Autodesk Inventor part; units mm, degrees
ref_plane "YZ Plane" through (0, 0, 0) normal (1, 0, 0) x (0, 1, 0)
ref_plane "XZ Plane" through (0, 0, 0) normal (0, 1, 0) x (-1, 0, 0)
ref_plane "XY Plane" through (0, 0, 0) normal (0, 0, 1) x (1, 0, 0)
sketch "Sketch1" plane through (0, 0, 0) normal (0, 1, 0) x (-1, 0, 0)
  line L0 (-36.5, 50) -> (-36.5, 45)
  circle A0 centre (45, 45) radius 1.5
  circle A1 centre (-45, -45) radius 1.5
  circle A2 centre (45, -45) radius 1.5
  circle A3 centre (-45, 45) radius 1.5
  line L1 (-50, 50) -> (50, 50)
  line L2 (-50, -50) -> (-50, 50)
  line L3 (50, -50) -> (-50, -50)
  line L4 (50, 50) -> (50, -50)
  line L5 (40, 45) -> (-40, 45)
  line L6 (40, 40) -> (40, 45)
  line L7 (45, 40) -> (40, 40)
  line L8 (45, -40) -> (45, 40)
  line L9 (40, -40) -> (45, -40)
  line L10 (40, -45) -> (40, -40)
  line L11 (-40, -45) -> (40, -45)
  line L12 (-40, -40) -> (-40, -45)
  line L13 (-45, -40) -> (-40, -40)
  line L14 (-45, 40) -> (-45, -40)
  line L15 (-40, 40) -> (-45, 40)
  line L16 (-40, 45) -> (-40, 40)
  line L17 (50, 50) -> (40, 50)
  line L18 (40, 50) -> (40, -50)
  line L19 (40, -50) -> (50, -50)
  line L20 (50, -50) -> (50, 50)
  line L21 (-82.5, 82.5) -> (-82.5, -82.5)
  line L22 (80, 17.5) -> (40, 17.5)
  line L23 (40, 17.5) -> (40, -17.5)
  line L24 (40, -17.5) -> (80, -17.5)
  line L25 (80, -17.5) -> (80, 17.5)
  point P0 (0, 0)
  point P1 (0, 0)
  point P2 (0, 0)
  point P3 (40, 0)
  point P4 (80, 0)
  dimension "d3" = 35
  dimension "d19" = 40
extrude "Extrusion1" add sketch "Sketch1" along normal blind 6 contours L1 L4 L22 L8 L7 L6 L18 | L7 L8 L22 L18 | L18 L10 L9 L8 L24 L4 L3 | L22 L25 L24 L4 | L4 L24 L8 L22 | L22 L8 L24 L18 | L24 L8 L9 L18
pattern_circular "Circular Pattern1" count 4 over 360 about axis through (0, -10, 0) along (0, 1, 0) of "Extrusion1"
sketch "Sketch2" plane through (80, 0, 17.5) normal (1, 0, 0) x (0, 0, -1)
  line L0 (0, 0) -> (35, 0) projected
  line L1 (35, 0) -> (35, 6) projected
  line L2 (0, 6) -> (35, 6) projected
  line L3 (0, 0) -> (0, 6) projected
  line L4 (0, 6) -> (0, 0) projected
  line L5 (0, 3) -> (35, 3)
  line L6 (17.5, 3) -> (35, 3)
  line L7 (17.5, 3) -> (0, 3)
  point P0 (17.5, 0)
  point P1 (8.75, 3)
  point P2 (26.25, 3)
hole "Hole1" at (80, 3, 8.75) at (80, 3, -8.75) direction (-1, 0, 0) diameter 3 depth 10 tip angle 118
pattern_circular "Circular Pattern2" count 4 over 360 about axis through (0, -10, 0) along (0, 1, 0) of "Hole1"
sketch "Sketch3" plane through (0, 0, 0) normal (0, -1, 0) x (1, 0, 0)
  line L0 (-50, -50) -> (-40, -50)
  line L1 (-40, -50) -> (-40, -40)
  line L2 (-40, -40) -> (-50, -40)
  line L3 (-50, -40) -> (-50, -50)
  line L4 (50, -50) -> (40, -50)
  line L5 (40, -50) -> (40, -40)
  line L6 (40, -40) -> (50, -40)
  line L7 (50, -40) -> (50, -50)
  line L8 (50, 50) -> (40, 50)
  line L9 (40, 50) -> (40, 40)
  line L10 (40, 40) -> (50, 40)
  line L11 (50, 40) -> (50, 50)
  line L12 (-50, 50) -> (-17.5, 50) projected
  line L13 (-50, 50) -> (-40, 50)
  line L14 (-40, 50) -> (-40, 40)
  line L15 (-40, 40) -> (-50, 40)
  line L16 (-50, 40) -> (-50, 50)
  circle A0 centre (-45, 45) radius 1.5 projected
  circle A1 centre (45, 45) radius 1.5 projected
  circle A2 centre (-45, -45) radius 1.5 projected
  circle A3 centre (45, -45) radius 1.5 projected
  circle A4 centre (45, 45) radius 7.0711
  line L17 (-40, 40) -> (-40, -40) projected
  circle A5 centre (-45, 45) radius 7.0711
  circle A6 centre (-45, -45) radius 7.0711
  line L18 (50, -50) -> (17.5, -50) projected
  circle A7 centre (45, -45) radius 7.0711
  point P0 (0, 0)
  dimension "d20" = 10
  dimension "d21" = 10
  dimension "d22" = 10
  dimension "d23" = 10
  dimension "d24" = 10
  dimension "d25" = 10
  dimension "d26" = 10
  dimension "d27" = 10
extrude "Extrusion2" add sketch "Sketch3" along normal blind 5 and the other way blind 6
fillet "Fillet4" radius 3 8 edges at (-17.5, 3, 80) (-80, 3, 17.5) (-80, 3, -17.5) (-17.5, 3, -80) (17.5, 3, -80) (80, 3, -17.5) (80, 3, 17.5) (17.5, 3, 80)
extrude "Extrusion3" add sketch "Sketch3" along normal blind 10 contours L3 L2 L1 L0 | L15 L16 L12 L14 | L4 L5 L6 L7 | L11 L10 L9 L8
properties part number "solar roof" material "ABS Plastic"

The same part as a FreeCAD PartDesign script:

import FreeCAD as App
import Part
import Sketcher


def edges_at(feature, points):
    """Names of the edges that pass closest to the given points."""
    edges = feature.Shape.Edges
    near = lambda p: min(range(len(edges)), key=lambda i: edges[i].distToShape(Part.Vertex(*p))[0])
    return sorted({f"Edge{near(p) + 1}" for p in points})


def add_polygon(sketch, points):
    """Adds a closed chain of lines whose ends are joined by coincident constraints."""
    first, n = sketch.GeometryCount, len(points)
    for a, b in zip(points, points[1:] + points[:1]):
        sketch.addGeometry(Part.LineSegment(App.Vector(*a, 0), App.Vector(*b, 0)), False)
    for i in range(n):
        sketch.addConstraint(Sketcher.Constraint("Coincident", first + i, 2, first + (i + 1) % n, 1))

doc = App.newDocument("Part")
params = doc.addObject("Spreadsheet::Sheet", "Params")
for row, (alias, value) in enumerate([
    ("sketch1_height", "35 mm"),
    ("sketch1_diameter", "3 mm"),
    ("sketch1_width", "10 mm"),
    ("sketch1_height2", "100 mm"),
    ("pad1_length", "6 mm"),
    ("sketch2_diameter", "3 mm"),
    ("hole_diameter", "3 mm"),
    ("hole_depth", "10 mm"),
    ("sketch3_diameter", "3 mm"),
    ("pad2_length", "5 mm"),
    ("pad2_length2", "6 mm"),
    ("fillet_radius", "3 mm"),
    ("sketch4_width", "10 mm"),
    ("sketch4_diameter", "3 mm"),
    ("pad3_length", "10 mm"),
], start=1):
    params.set(f"A{row}", alias)
    params.set(f"B{row}", "=" + value)
    params.setAlias(f"B{row}", alias)

body = doc.addObject("PartDesign::Body", "Body")

# Sketch on XZ plane
sketch1 = body.newObject("Sketcher::SketchObject", "Sketch")
sketch1.AttachmentSupport = (doc.getObject("XZ_Plane"), [""])
sketch1.MapMode = "FlatFace"
add_polygon(sketch1, [(-50, 50), (-40, 50), (-40, -50), (-50, -50), (-50, -17.5), (-80, -17.5), (-80, 17.5), (-50, 17.5)])  # lines 0-7
sketch1.addGeometry(Part.Circle(App.Vector(-45, 45, 0), App.Vector(0, 0, 1), 1.5), False)  # 8
sketch1.addGeometry(Part.Circle(App.Vector(-45, -45, 0), App.Vector(0, 0, 1), 1.5), False)  # 9
sketch1.addConstraint(Sketcher.Constraint("Horizontal", 0))
sketch1.addConstraint(Sketcher.Constraint("Vertical", 1))
sketch1.addConstraint(Sketcher.Constraint("Horizontal", 2))
sketch1.addConstraint(Sketcher.Constraint("Vertical", 3))
sketch1.addConstraint(Sketcher.Constraint("Horizontal", 4))
sketch1.addConstraint(Sketcher.Constraint("Vertical", 5))
sketch1.addConstraint(Sketcher.Constraint("Horizontal", 6))
sketch1.addConstraint(Sketcher.Constraint("Vertical", 7))
sketch1.addConstraint(Sketcher.Constraint("Equal", 8, 9))
sketch1.addConstraint(Sketcher.Constraint("Symmetric", 8, 3, 9, 3, -1))
sketch1.addConstraint(Sketcher.Constraint("Symmetric", 3, 2, 6, 2, -1))
sketch1.addConstraint(Sketcher.Constraint("Equal", 3, 7))
sketch1.addConstraint(Sketcher.Constraint("DistanceY", 5, 1, 5, 2, 35.0))
sketch1.addConstraint(Sketcher.Constraint("Diameter", 8, 3.0))
sketch1.addConstraint(Sketcher.Constraint("DistanceX", 0, 2, -1, 1, 40.0))
sketch1.addConstraint(Sketcher.Constraint("DistanceX", 4, 2, 9, 3, 35.0))
sketch1.addConstraint(Sketcher.Constraint("DistanceX", 4, 2, 1, 2, 40.0))
sketch1.addConstraint(Sketcher.Constraint("DistanceX", 0, 1, 0, 2, 10.0))
sketch1.addConstraint(Sketcher.Constraint("DistanceY", 1, 2, 1, 1, 100.0))
sketch1.addConstraint(Sketcher.Constraint("DistanceY", -1, 1, 8, 3, 45.0))
sketch1.setExpression("Constraints[20]", "Params.sketch1_height")
sketch1.setExpression("Constraints[21]", "Params.sketch1_diameter")
sketch1.setExpression("Constraints[25]", "Params.sketch1_width")
sketch1.setExpression("Constraints[26]", "Params.sketch1_height2")
pad1 = body.newObject("PartDesign::Pad", "Pad")
pad1.Profile = sketch1
pad1.setExpression("Length", "Params.pad1_length")
pad1.Reversed = True
doc.recompute()

polarpattern = body.newObject("PartDesign::PolarPattern", "PolarPattern")
polarpattern.Originals = [pad1]
polarpattern.Axis = (doc.getObject("Y_Axis"), [""])
polarpattern.Angle = 360
polarpattern.Occurrences = 4
body.Tip = polarpattern

# Sketch on YZ plane
sketch2 = body.newObject("Sketcher::SketchObject", "Sketch001")
sketch2.AttachmentSupport = (doc.getObject("YZ_Plane"), [""])
sketch2.MapMode = "FlatFace"
sketch2.AttachmentOffset = App.Placement(App.Vector(0, 0, 80), App.Rotation())
sketch2.addGeometry(Part.Circle(App.Vector(3, 8.8, 0), App.Vector(0, 0, 1), 1.5), False)
sketch2.addGeometry(Part.Circle(App.Vector(3, -8.8, 0), App.Vector(0, 0, 1), 1.5), False)
sketch2.addConstraint(Sketcher.Constraint("Equal", 0, 1))
sketch2.addConstraint(Sketcher.Constraint("Symmetric", 0, 3, 1, 3, -1))
sketch2.addConstraint(Sketcher.Constraint("Diameter", 0, 3.0))
sketch2.addConstraint(Sketcher.Constraint("DistanceX", -1, 1, 0, 3, 3.0))
sketch2.addConstraint(Sketcher.Constraint("DistanceY", 1, 3, 0, 3, 17.5))
sketch2.setExpression("Constraints[2]", "Params.sketch2_diameter")
doc.recompute()
hole = body.newObject("PartDesign::Hole", "Hole")
hole.Profile = sketch2
hole.ThreadType = "None"
hole.setExpression("Diameter", "Params.hole_diameter")
hole.DepthType = "Dimension"
hole.setExpression("Depth", "Params.hole_depth")
hole.DrillPoint = "Angled"
hole.DrillPointAngle = 118
doc.recompute()

polarpattern2 = body.newObject("PartDesign::PolarPattern", "PolarPattern001")
polarpattern2.Originals = [hole]
polarpattern2.Axis = (doc.getObject("Y_Axis"), [""])
polarpattern2.Angle = 360
polarpattern2.Occurrences = 4
body.Tip = polarpattern2

# Sketch on XZ plane
sketch3 = body.newObject("Sketcher::SketchObject", "Sketch002")
sketch3.AttachmentSupport = (doc.getObject("XZ_Plane"), [""])
sketch3.MapMode = "FlatFace"
sketch3.addGeometry(Part.Circle(App.Vector(-45, -45, 0), App.Vector(0, 0, 1), 7.1), False)
sketch3.addGeometry(Part.Circle(App.Vector(-45, -45, 0), App.Vector(0, 0, 1), 1.5), False)
sketch3.addGeometry(Part.Circle(App.Vector(-45, 45, 0), App.Vector(0, 0, 1), 7.1), False)
sketch3.addGeometry(Part.Circle(App.Vector(-45, 45, 0), App.Vector(0, 0, 1), 1.5), False)
sketch3.addGeometry(Part.Circle(App.Vector(45, -45, 0), App.Vector(0, 0, 1), 7.1), False)
sketch3.addGeometry(Part.Circle(App.Vector(45, -45, 0), App.Vector(0, 0, 1), 1.5), False)
sketch3.addGeometry(Part.Circle(App.Vector(45, 45, 0), App.Vector(0, 0, 1), 7.1), False)
sketch3.addGeometry(Part.Circle(App.Vector(45, 45, 0), App.Vector(0, 0, 1), 1.5), False)
sketch3.addConstraint(Sketcher.Constraint("Coincident", 1, 3, 0, 3))
sketch3.addConstraint(Sketcher.Constraint("Coincident", 3, 3, 2, 3))
sketch3.addConstraint(Sketcher.Constraint("Coincident", 5, 3, 4, 3))
sketch3.addConstraint(Sketcher.Constraint("Coincident", 7, 3, 6, 3))
sketch3.addConstraint(Sketcher.Constraint("Equal", 0, 2))
sketch3.addConstraint(Sketcher.Constraint("Equal", 1, 3))
sketch3.addConstraint(Sketcher.Constraint("Equal", 2, 4))
sketch3.addConstraint(Sketcher.Constraint("Equal", 3, 5))
sketch3.addConstraint(Sketcher.Constraint("Equal", 4, 6))
sketch3.addConstraint(Sketcher.Constraint("Equal", 5, 7))
sketch3.addConstraint(Sketcher.Constraint("Symmetric", 2, 3, 4, 3, -1, 1))
sketch3.addConstraint(Sketcher.Constraint("Symmetric", 0, 3, 6, 3, -1, 1))
sketch3.addConstraint(Sketcher.Constraint("Symmetric", 0, 3, 4, 3, -2))
sketch3.addConstraint(Sketcher.Constraint("Diameter", 1, 3.0))
sketch3.addConstraint(Sketcher.Constraint("DistanceX", 0, 3, -1, 1, 45.0))
sketch3.addConstraint(Sketcher.Constraint("DistanceY", 0, 3, -1, 1, 45.0))
sketch3.addConstraint(Sketcher.Constraint("Diameter", 0, 14.1422))
sketch3.setExpression("Constraints[13]", "Params.sketch3_diameter")
pad2 = body.newObject("PartDesign::Pad", "Pad001")
pad2.Profile = sketch3
pad2.Type = "TwoLengths"
pad2.setExpression("Length", "Params.pad2_length")
pad2.setExpression("Length2", "Params.pad2_length2")
doc.recompute()

fillet = body.newObject("PartDesign::Fillet", "Fillet")
fillet.Base = (pad2, edges_at(pad2, [
    (-17.5, 3, 80),
    (-80, 3, 17.5),
    (-80, 3, -17.5),
    (-17.5, 3, -80),
    (17.5, 3, -80),
    (80, 3, -17.5),
    (80, 3, 17.5),
    (17.5, 3, 80),
]))
fillet.setExpression("Radius", "Params.fillet_radius")

# Sketch on XZ plane
sketch4 = body.newObject("Sketcher::SketchObject", "Sketch003")
sketch4.AttachmentSupport = (doc.getObject("XZ_Plane"), [""])
sketch4.MapMode = "FlatFace"
add_polygon(sketch4, [(-50, -40), (-50, -50), (-40, -50), (-40, -40)])  # lines 0-3
sketch4.addGeometry(Part.Circle(App.Vector(-45, -45, 0), App.Vector(0, 0, 1), 1.5), False)  # 4
add_polygon(sketch4, [(-50, 40), (-40, 40), (-40, 50), (-50, 50)])  # lines 5-8
sketch4.addGeometry(Part.Circle(App.Vector(-45, 45, 0), App.Vector(0, 0, 1), 1.5), False)  # 9
add_polygon(sketch4, [(40, -50), (50, -50), (50, -40), (40, -40)])  # lines 10-13
sketch4.addGeometry(Part.Circle(App.Vector(45, -45, 0), App.Vector(0, 0, 1), 1.5), False)  # 14
add_polygon(sketch4, [(50, 40), (50, 50), (40, 50), (40, 40)])  # lines 15-18
sketch4.addGeometry(Part.Circle(App.Vector(45, 45, 0), App.Vector(0, 0, 1), 1.5), False)  # 19
sketch4.addConstraint(Sketcher.Constraint("Vertical", 0))
sketch4.addConstraint(Sketcher.Constraint("Horizontal", 1))
sketch4.addConstraint(Sketcher.Constraint("Vertical", 2))
sketch4.addConstraint(Sketcher.Constraint("Horizontal", 3))
sketch4.addConstraint(Sketcher.Constraint("Horizontal", 5))
sketch4.addConstraint(Sketcher.Constraint("Vertical", 6))
sketch4.addConstraint(Sketcher.Constraint("Horizontal", 7))
sketch4.addConstraint(Sketcher.Constraint("Vertical", 8))
sketch4.addConstraint(Sketcher.Constraint("Horizontal", 10))
sketch4.addConstraint(Sketcher.Constraint("Vertical", 11))
sketch4.addConstraint(Sketcher.Constraint("Horizontal", 12))
sketch4.addConstraint(Sketcher.Constraint("Vertical", 13))
sketch4.addConstraint(Sketcher.Constraint("Vertical", 15))
sketch4.addConstraint(Sketcher.Constraint("Horizontal", 16))
sketch4.addConstraint(Sketcher.Constraint("Vertical", 17))
sketch4.addConstraint(Sketcher.Constraint("Horizontal", 18))
sketch4.addConstraint(Sketcher.Constraint("Equal", 4, 9))
sketch4.addConstraint(Sketcher.Constraint("Equal", 9, 14))
sketch4.addConstraint(Sketcher.Constraint("Equal", 14, 19))
sketch4.addConstraint(Sketcher.Constraint("Symmetric", 9, 3, 14, 3, -1, 1))
sketch4.addConstraint(Sketcher.Constraint("Symmetric", 4, 3, 19, 3, -1, 1))
sketch4.addConstraint(Sketcher.Constraint("Symmetric", 7, 2, 10, 2, -1, 1))
sketch4.addConstraint(Sketcher.Constraint("Symmetric", 5, 2, 12, 2, -1, 1))
sketch4.addConstraint(Sketcher.Constraint("Symmetric", 0, 2, 15, 2, -1, 1))
sketch4.addConstraint(Sketcher.Constraint("Symmetric", 2, 2, 17, 2, -1, 1))
sketch4.addConstraint(Sketcher.Constraint("Symmetric", 4, 3, 14, 3, -2))
sketch4.addConstraint(Sketcher.Constraint("Symmetric", 0, 2, 10, 2, -2))
sketch4.addConstraint(Sketcher.Constraint("Symmetric", 2, 2, 12, 2, -2))
sketch4.addConstraint(Sketcher.Constraint("Equal", 18, 0))
sketch4.addConstraint(Sketcher.Constraint("DistanceX", 1, 1, 1, 2, 10.0))
sketch4.addConstraint(Sketcher.Constraint("Diameter", 4, 3.0))
sketch4.addConstraint(Sketcher.Constraint("DistanceX", 4, 3, -1, 1, 45.0))
sketch4.addConstraint(Sketcher.Constraint("DistanceY", 4, 3, -1, 1, 45.0))
sketch4.addConstraint(Sketcher.Constraint("DistanceX", 0, 2, -1, 1, 50.0))
sketch4.addConstraint(Sketcher.Constraint("DistanceY", 0, 2, -1, 1, 50.0))
sketch4.setExpression("Constraints[45]", "Params.sketch4_width")
sketch4.setExpression("Constraints[46]", "Params.sketch4_diameter")
pad3 = body.newObject("PartDesign::Pad", "Pad002")
pad3.Profile = sketch4
pad3.setExpression("Length", "Params.pad3_length")

doc.recompute()
